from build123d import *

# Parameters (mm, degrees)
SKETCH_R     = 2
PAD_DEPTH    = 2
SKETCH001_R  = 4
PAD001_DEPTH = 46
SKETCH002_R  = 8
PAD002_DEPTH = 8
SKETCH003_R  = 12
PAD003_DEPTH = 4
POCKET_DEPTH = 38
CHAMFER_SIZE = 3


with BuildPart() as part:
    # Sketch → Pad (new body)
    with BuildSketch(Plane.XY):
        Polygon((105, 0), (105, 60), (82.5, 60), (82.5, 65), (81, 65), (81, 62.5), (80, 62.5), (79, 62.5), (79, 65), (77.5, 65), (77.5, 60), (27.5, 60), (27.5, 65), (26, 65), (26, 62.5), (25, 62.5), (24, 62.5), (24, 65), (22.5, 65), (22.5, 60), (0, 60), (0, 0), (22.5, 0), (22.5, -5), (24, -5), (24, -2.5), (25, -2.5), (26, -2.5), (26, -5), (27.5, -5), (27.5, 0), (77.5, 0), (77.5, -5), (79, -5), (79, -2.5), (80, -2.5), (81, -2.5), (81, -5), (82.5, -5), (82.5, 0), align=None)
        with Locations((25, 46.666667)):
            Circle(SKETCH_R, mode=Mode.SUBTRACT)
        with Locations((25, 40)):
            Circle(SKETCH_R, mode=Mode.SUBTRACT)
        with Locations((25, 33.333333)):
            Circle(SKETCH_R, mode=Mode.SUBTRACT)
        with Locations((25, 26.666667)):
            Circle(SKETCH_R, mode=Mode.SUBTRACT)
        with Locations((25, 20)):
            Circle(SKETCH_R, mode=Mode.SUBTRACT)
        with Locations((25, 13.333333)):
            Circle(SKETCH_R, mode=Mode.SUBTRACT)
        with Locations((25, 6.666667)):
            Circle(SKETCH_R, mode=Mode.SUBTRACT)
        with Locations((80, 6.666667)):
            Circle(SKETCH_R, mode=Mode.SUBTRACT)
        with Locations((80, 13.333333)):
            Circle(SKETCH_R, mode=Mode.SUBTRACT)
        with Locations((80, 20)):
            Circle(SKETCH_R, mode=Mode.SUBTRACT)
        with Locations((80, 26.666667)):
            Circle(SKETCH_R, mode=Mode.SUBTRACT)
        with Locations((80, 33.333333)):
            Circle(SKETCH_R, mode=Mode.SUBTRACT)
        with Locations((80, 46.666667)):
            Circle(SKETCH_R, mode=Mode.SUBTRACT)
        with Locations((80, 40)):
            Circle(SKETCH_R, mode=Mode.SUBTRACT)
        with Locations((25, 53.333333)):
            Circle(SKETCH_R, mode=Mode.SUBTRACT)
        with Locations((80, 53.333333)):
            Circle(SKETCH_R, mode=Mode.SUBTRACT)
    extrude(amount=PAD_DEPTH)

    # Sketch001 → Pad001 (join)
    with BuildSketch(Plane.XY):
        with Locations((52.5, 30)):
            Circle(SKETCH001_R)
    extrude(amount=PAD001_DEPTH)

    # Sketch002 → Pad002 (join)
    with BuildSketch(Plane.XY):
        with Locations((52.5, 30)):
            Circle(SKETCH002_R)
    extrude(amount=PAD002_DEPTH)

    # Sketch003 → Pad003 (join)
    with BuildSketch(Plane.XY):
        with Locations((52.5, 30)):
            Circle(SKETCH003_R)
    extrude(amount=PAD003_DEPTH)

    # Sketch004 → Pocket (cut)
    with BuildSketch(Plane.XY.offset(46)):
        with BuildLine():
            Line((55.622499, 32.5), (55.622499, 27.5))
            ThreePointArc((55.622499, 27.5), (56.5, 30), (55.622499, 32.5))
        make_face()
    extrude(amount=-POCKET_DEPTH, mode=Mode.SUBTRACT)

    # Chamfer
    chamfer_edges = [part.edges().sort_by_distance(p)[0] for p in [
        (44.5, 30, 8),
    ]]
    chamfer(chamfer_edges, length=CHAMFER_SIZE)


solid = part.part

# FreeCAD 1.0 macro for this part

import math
import FreeCAD as App
import Part
import Sketcher


def edges_at(feature, points):
    """Names of the edges that pass closest to the given points."""
    edges = feature.Shape.Edges
    near = lambda p: min(range(len(edges)), key=lambda i: edges[i].distToShape(Part.Vertex(*p))[0])
    return sorted({f"Edge{near(p) + 1}" for p in points})


def add_polygon(sketch, points):
    """Adds a closed chain of lines whose ends are joined by coincident constraints."""
    first, n = sketch.GeometryCount, len(points)
    for a, b in zip(points, points[1:] + points[:1]):
        sketch.addGeometry(Part.LineSegment(App.Vector(*a, 0), App.Vector(*b, 0)), False)
    for i in range(n):
        sketch.addConstraint(Sketcher.Constraint("Coincident", first + i, 2, first + (i + 1) % n, 1))

doc = App.newDocument("Part")
params = doc.addObject("Spreadsheet::Sheet", "Params")
for row, (alias, value) in enumerate([
    ("sketch1_diameter", "4 mm"),
    ("sketch1_width", "2 mm"),
    ("sketch1_width2", "50 mm"),
    ("sketch1_height", "60 mm"),
    ("sketch1_height2", "5 mm"),
    ("pad1_length", "2 mm"),
    ("sketch2_diameter", "8 mm"),
    ("pad2_length", "46 mm"),
    ("sketch3_diameter", "16 mm"),
    ("pad3_length", "8 mm"),
    ("sketch4_diameter", "24 mm"),
    ("pad4_length", "4 mm"),
    ("sketch5_radius", "4 mm"),
    ("sketch5_height", "5 mm"),
    ("pocket1_length", "38 mm"),
    ("chamfer_size", "3 mm"),
], start=1):
    params.set(f"A{row}", alias)
    params.set(f"B{row}", "=" + value)
    params.setAlias(f"B{row}", alias)

body = doc.addObject("PartDesign::Body", "Body")

sketch1 = doc.addObject("Sketcher::SketchObject", "Sketch")
body.addObject(sketch1)
sketch1.AttachmentSupport = (doc.XY_Plane, [""])
sketch1.MapMode = "FlatFace"
add_polygon(sketch1, [(105, 0), (105, 60), (82.5, 60), (82.5, 65), (81, 65), (81, 62.5), (79, 62.5), (79, 65), (77.5, 65), (77.5, 60), (27.5, 60), (27.5, 65), (26, 65), (26, 62.5), (24, 62.5), (24, 65), (22.5, 65), (22.5, 60), (0, 60), (0, 0), (22.5, 0), (22.5, -5), (24, -5), (24, -2.5), (26, -2.5), (26, -5), (27.5, -5), (27.5, 0), (77.5, 0), (77.5, -5), (79, -5), (79, -2.5), (81, -2.5), (81, -5), (82.5, -5), (82.5, 0)])
sketch1.addGeometry(Part.Circle(App.Vector(25, 6.666667, 0), App.Vector(0, 0, 1), 2), False)
sketch1.addGeometry(Part.Circle(App.Vector(25, 13.333333, 0), App.Vector(0, 0, 1), 2), False)
sketch1.addGeometry(Part.Circle(App.Vector(25, 20, 0), App.Vector(0, 0, 1), 2), False)
sketch1.addGeometry(Part.Circle(App.Vector(25, 26.666667, 0), App.Vector(0, 0, 1), 2), False)
sketch1.addGeometry(Part.Circle(App.Vector(80, 6.666667, 0), App.Vector(0, 0, 1), 2), False)
sketch1.addGeometry(Part.Circle(App.Vector(80, 13.333333, 0), App.Vector(0, 0, 1), 2), False)
sketch1.addGeometry(Part.Circle(App.Vector(80, 20, 0), App.Vector(0, 0, 1), 2), False)
sketch1.addGeometry(Part.Circle(App.Vector(80, 26.666667, 0), App.Vector(0, 0, 1), 2), False)
sketch1.addGeometry(Part.Circle(App.Vector(25, 33.333333, 0), App.Vector(0, 0, 1), 2), False)
sketch1.addGeometry(Part.Circle(App.Vector(25, 40, 0), App.Vector(0, 0, 1), 2), False)
sketch1.addGeometry(Part.Circle(App.Vector(25, 46.666667, 0), App.Vector(0, 0, 1), 2), False)
sketch1.addGeometry(Part.Circle(App.Vector(25, 53.333333, 0), App.Vector(0, 0, 1), 2), False)
sketch1.addGeometry(Part.Circle(App.Vector(80, 33.333333, 0), App.Vector(0, 0, 1), 2), False)
sketch1.addGeometry(Part.Circle(App.Vector(80, 40, 0), App.Vector(0, 0, 1), 2), False)
sketch1.addGeometry(Part.Circle(App.Vector(80, 46.666667, 0), App.Vector(0, 0, 1), 2), False)
sketch1.addGeometry(Part.Circle(App.Vector(80, 53.333333, 0), App.Vector(0, 0, 1), 2), False)
sketch1.addConstraint(Sketcher.Constraint("Vertical", 0))
sketch1.addConstraint(Sketcher.Constraint("Horizontal", 1))
sketch1.addConstraint(Sketcher.Constraint("Vertical", 2))
sketch1.addConstraint(Sketcher.Constraint("Horizontal", 3))
sketch1.addConstraint(Sketcher.Constraint("Vertical", 4))
sketch1.addConstraint(Sketcher.Constraint("Horizontal", 5))
sketch1.addConstraint(Sketcher.Constraint("Vertical", 6))
sketch1.addConstraint(Sketcher.Constraint("Horizontal", 7))
sketch1.addConstraint(Sketcher.Constraint("Vertical", 8))
sketch1.addConstraint(Sketcher.Constraint("Horizontal", 9))
sketch1.addConstraint(Sketcher.Constraint("Vertical", 10))
sketch1.addConstraint(Sketcher.Constraint("Horizontal", 11))
sketch1.addConstraint(Sketcher.Constraint("Vertical", 12))
sketch1.addConstraint(Sketcher.Constraint("Horizontal", 13))
sketch1.addConstraint(Sketcher.Constraint("Vertical", 14))
sketch1.addConstraint(Sketcher.Constraint("Horizontal", 15))
sketch1.addConstraint(Sketcher.Constraint("Vertical", 16))
sketch1.addConstraint(Sketcher.Constraint("Horizontal", 17))
sketch1.addConstraint(Sketcher.Constraint("Vertical", 18))
sketch1.addConstraint(Sketcher.Constraint("Horizontal", 19))
sketch1.addConstraint(Sketcher.Constraint("Vertical", 20))
sketch1.addConstraint(Sketcher.Constraint("Horizontal", 21))
sketch1.addConstraint(Sketcher.Constraint("Vertical", 22))
sketch1.addConstraint(Sketcher.Constraint("Horizontal", 23))
sketch1.addConstraint(Sketcher.Constraint("Vertical", 24))
sketch1.addConstraint(Sketcher.Constraint("Horizontal", 25))
sketch1.addConstraint(Sketcher.Constraint("Vertical", 26))
sketch1.addConstraint(Sketcher.Constraint("Horizontal", 27))
sketch1.addConstraint(Sketcher.Constraint("Vertical", 28))
sketch1.addConstraint(Sketcher.Constraint("Horizontal", 29))
sketch1.addConstraint(Sketcher.Constraint("Vertical", 30))
sketch1.addConstraint(Sketcher.Constraint("Horizontal", 31))
sketch1.addConstraint(Sketcher.Constraint("Vertical", 32))
sketch1.addConstraint(Sketcher.Constraint("Horizontal", 33))
sketch1.addConstraint(Sketcher.Constraint("Vertical", 34))
sketch1.addConstraint(Sketcher.Constraint("Horizontal", 35))
sketch1.addConstraint(Sketcher.Constraint("Coincident", 18, 2, -1, 1))
sketch1.addConstraint(Sketcher.Constraint("Equal", 36, 37))
sketch1.addConstraint(Sketcher.Constraint("Equal", 37, 38))
sketch1.addConstraint(Sketcher.Constraint("Equal", 38, 39))
sketch1.addConstraint(Sketcher.Constraint("Equal", 39, 40))
sketch1.addConstraint(Sketcher.Constraint("Equal", 40, 41))
sketch1.addConstraint(Sketcher.Constraint("Equal", 41, 42))
sketch1.addConstraint(Sketcher.Constraint("Equal", 42, 43))
sketch1.addConstraint(Sketcher.Constraint("Equal", 43, 44))
sketch1.addConstraint(Sketcher.Constraint("Equal", 44, 45))
sketch1.addConstraint(Sketcher.Constraint("Equal", 45, 46))
sketch1.addConstraint(Sketcher.Constraint("Equal", 46, 47))
sketch1.addConstraint(Sketcher.Constraint("Equal", 47, 48))
sketch1.addConstraint(Sketcher.Constraint("Equal", 48, 49))
sketch1.addConstraint(Sketcher.Constraint("Equal", 49, 50))
sketch1.addConstraint(Sketcher.Constraint("Equal", 50, 51))
sketch1.addConstraint(Sketcher.Constraint("PointOnObject", 26, 2, -1))
sketch1.addConstraint(Sketcher.Constraint("PointOnObject", 34, 2, -1))
sketch1.addConstraint(Sketcher.Constraint("Horizontal", 36, 3, 40, 3))
sketch1.addConstraint(Sketcher.Constraint("Horizontal", 37, 3, 41, 3))
sketch1.addConstraint(Sketcher.Constraint("Horizontal", 38, 3, 42, 3))
sketch1.addConstraint(Sketcher.Constraint("Horizontal", 39, 3, 43, 3))
sketch1.addConstraint(Sketcher.Constraint("Horizontal", 44, 3, 48, 3))
sketch1.addConstraint(Sketcher.Constraint("Horizontal", 45, 3, 49, 3))
sketch1.addConstraint(Sketcher.Constraint("Horizontal", 46, 3, 50, 3))
sketch1.addConstraint(Sketcher.Constraint("Horizontal", 47, 3, 51, 3))
sketch1.addConstraint(Sketcher.Constraint("Horizontal", 3, 2, 6, 2))
sketch1.addConstraint(Sketcher.Constraint("Horizontal", 1, 2, 8, 2))
sketch1.addConstraint(Sketcher.Constraint("Horizontal", 7, 2, 10, 2))
sketch1.addConstraint(Sketcher.Constraint("Horizontal", 5, 2, 12, 2))
sketch1.addConstraint(Sketcher.Constraint("Horizontal", 11, 2, 14, 2))
sketch1.addConstraint(Sketcher.Constraint("Horizontal", 9, 2, 16, 2))
sketch1.addConstraint(Sketcher.Constraint("Horizontal", 21, 2, 24, 2))
sketch1.addConstraint(Sketcher.Constraint("Horizontal", 25, 2, 28, 2))
sketch1.addConstraint(Sketcher.Constraint("Horizontal", 23, 2, 30, 2))
sketch1.addConstraint(Sketcher.Constraint("Horizontal", 29, 2, 32, 2))
sketch1.addConstraint(Sketcher.Constraint("Vertical", 36, 3, 37, 3))
sketch1.addConstraint(Sketcher.Constraint("Vertical", 37, 3, 38, 3))
sketch1.addConstraint(Sketcher.Constraint("Vertical", 38, 3, 39, 3))
sketch1.addConstraint(Sketcher.Constraint("Vertical", 40, 3, 41, 3))
sketch1.addConstraint(Sketcher.Constraint("Vertical", 41, 3, 42, 3))
sketch1.addConstraint(Sketcher.Constraint("Vertical", 42, 3, 43, 3))
sketch1.addConstraint(Sketcher.Constraint("Vertical", 39, 3, 44, 3))
sketch1.addConstraint(Sketcher.Constraint("Vertical", 44, 3, 45, 3))
sketch1.addConstraint(Sketcher.Constraint("Vertical", 45, 3, 46, 3))
sketch1.addConstraint(Sketcher.Constraint("Vertical", 46, 3, 47, 3))
sketch1.addConstraint(Sketcher.Constraint("Vertical", 43, 3, 48, 3))
sketch1.addConstraint(Sketcher.Constraint("Vertical", 48, 3, 49, 3))
sketch1.addConstraint(Sketcher.Constraint("Vertical", 49, 3, 50, 3))
sketch1.addConstraint(Sketcher.Constraint("Vertical", 50, 3, 51, 3))
sketch1.addConstraint(Sketcher.Constraint("Vertical", 16, 2, 19, 2))
sketch1.addConstraint(Sketcher.Constraint("Vertical", 14, 2, 21, 2))
sketch1.addConstraint(Sketcher.Constraint("Vertical", 12, 2, 23, 2))
sketch1.addConstraint(Sketcher.Constraint("Vertical", 10, 2, 25, 2))
sketch1.addConstraint(Sketcher.Constraint("Vertical", 8, 2, 27, 2))
sketch1.addConstraint(Sketcher.Constraint("Vertical", 6, 2, 29, 2))
sketch1.addConstraint(Sketcher.Constraint("Vertical", 4, 2, 31, 2))
sketch1.addConstraint(Sketcher.Constraint("Vertical", 2, 2, 33, 2))
sketch1.addConstraint(Sketcher.Constraint("Equal", 3, 7))
sketch1.addConstraint(Sketcher.Constraint("Equal", 7, 11))
sketch1.addConstraint(Sketcher.Constraint("Equal", 5, 13))
sketch1.addConstraint(Sketcher.Constraint("Equal", 11, 15))
sketch1.addConstraint(Sketcher.Constraint("Equal", 1, 17))
sketch1.addConstraint(Sketcher.Constraint("Equal", 16, 20))
sketch1.addConstraint(Sketcher.Constraint("Equal", 14, 22))
sketch1.addConstraint(Sketcher.Constraint("Diameter", 36, 4.0))
sketch1.addConstraint(Sketcher.Constraint("DistanceX", 5, 2, 5, 1, 2.0))
sketch1.addConstraint(Sketcher.Constraint("DistanceX", 9, 2, 9, 1, 50.0))
sketch1.addConstraint(Sketcher.Constraint("DistanceY", 0, 1, 0, 2, 60.0))
sketch1.addConstraint(Sketcher.Constraint("DistanceY", 2, 1, 2, 2, 5.0))
sketch1.addConstraint(Sketcher.Constraint("DistanceX", 1, 2, 1, 1, 22.5))
sketch1.addConstraint(Sketcher.Constraint("DistanceX", 3, 2, 3, 1, 1.5))
sketch1.addConstraint(Sketcher.Constraint("DistanceY", 4, 2, 4, 1, 2.5))
sketch1.addConstraint(Sketcher.Constraint("DistanceX", -1, 1, 36, 3, 25.0))
sketch1.addConstraint(Sketcher.Constraint("DistanceY", -1, 1, 38, 3, 20.0))
sketch1.addConstraint(Sketcher.Constraint("DistanceX", -1, 1, 40, 3, 80.0))
sketch1.addConstraint(Sketcher.Constraint("DistanceY", -1, 1, 45, 3, 40.0))
sketch1.addConstraint(Sketcher.Constraint("DistanceY", 36, 3, 39, 3, 20.0))
sketch1.addConstraint(Sketcher.Constraint("DistanceY", 37, 3, 44, 3, 20.0))
sketch1.addConstraint(Sketcher.Constraint("DistanceY", 39, 3, 46, 3, 20.0))
sketch1.addConstraint(Sketcher.Constraint("DistanceY", 44, 3, 47, 3, 20.0))
sketch1.addConstraint(Sketcher.Constraint("DistanceY", -1, 1, 36, 3, 6.666667))
sketch1.addConstraint(Sketcher.Constraint("DistanceY", -1, 1, 37, 3, 13.333333))
sketch1.setExpression("Constraints[137]", "Params.sketch1_diameter")
sketch1.setExpression("Constraints[138]", "Params.sketch1_width")
sketch1.setExpression("Constraints[139]", "Params.sketch1_width2")
sketch1.setExpression("Constraints[140]", "Params.sketch1_height")
sketch1.setExpression("Constraints[141]", "Params.sketch1_height2")
pad1 = doc.addObject("PartDesign::Pad", "Pad")
body.addObject(pad1)
pad1.Profile = sketch1
pad1.setExpression("Length", "Params.pad1_length")

sketch2 = doc.addObject("Sketcher::SketchObject", "Sketch001")
body.addObject(sketch2)
sketch2.AttachmentSupport = (doc.XY_Plane, [""])
sketch2.MapMode = "FlatFace"
sketch2.addGeometry(Part.Circle(App.Vector(52.5, 30, 0), App.Vector(0, 0, 1), 4), False)
sketch2.addConstraint(Sketcher.Constraint("Diameter", 0, 8.0))
sketch2.addConstraint(Sketcher.Constraint("DistanceY", -1, 1, 0, 3, 30.0))
sketch2.addConstraint(Sketcher.Constraint("DistanceX", -1, 1, 0, 3, 52.5))
sketch2.setExpression("Constraints[0]", "Params.sketch2_diameter")
pad2 = doc.addObject("PartDesign::Pad", "Pad001")
body.addObject(pad2)
pad2.Profile = sketch2
pad2.setExpression("Length", "Params.pad2_length")

sketch3 = doc.addObject("Sketcher::SketchObject", "Sketch002")
body.addObject(sketch3)
sketch3.AttachmentSupport = (doc.XY_Plane, [""])
sketch3.MapMode = "FlatFace"
sketch3.addGeometry(Part.Circle(App.Vector(52.5, 30, 0), App.Vector(0, 0, 1), 8), False)
sketch3.addConstraint(Sketcher.Constraint("Diameter", 0, 16.0))
sketch3.addConstraint(Sketcher.Constraint("DistanceY", -1, 1, 0, 3, 30.0))
sketch3.addConstraint(Sketcher.Constraint("DistanceX", -1, 1, 0, 3, 52.5))
sketch3.setExpression("Constraints[0]", "Params.sketch3_diameter")
pad3 = doc.addObject("PartDesign::Pad", "Pad002")
body.addObject(pad3)
pad3.Profile = sketch3
pad3.setExpression("Length", "Params.pad3_length")

sketch4 = doc.addObject("Sketcher::SketchObject", "Sketch003")
body.addObject(sketch4)
sketch4.AttachmentSupport = (doc.XY_Plane, [""])
sketch4.MapMode = "FlatFace"
sketch4.addGeometry(Part.Circle(App.Vector(52.5, 30, 0), App.Vector(0, 0, 1), 12), False)
sketch4.addConstraint(Sketcher.Constraint("Diameter", 0, 24.0))
sketch4.addConstraint(Sketcher.Constraint("DistanceY", -1, 1, 0, 3, 30.0))
sketch4.addConstraint(Sketcher.Constraint("DistanceX", -1, 1, 0, 3, 52.5))
sketch4.setExpression("Constraints[0]", "Params.sketch4_diameter")
pad4 = doc.addObject("PartDesign::Pad", "Pad003")
body.addObject(pad4)
pad4.Profile = sketch4
pad4.setExpression("Length", "Params.pad4_length")

sketch5 = doc.addObject("Sketcher::SketchObject", "Sketch004")
body.addObject(sketch5)
sketch5.AttachmentSupport = (doc.XY_Plane, [""])
sketch5.MapMode = "FlatFace"
sketch5.AttachmentOffset = App.Placement(App.Vector(0, 0, 46), App.Rotation())
sketch5.addGeometry(Part.LineSegment(App.Vector(55.622499, 32.5, 0), App.Vector(55.622499, 27.5, 0)), False)
sketch5.addGeometry(Part.ArcOfCircle(Part.Circle(App.Vector(52.5, 30, 0), App.Vector(0, 0, 1), 4), math.radians(-38.682187), math.radians(38.682187)), False)
sketch5.addConstraint(Sketcher.Constraint("Coincident", 0, 1, 1, 2))
sketch5.addConstraint(Sketcher.Constraint("Coincident", 1, 1, 0, 2))
sketch5.addConstraint(Sketcher.Constraint("Vertical", 0))
sketch5.addConstraint(Sketcher.Constraint("Radius", 1, 4.0))
sketch5.addConstraint(Sketcher.Constraint("DistanceY", 0, 2, 0, 1, 5.0))
sketch5.addConstraint(Sketcher.Constraint("DistanceY", -1, 1, 1, 3, 30.0))
sketch5.addConstraint(Sketcher.Constraint("DistanceX", -1, 1, 1, 3, 52.5))
sketch5.setExpression("Constraints[3]", "Params.sketch5_radius")
sketch5.setExpression("Constraints[4]", "Params.sketch5_height")
pocket1 = doc.addObject("PartDesign::Pocket", "Pocket")
body.addObject(pocket1)
pocket1.Profile = sketch5
pocket1.setExpression("Length", "Params.pocket1_length")
doc.recompute()

chamfer = doc.addObject("PartDesign::Chamfer", "Chamfer")
body.addObject(chamfer)
chamfer.Base = (pocket1, edges_at(pocket1, [(44.5, 30, 8)]))
chamfer.setExpression("Size", "Params.chamfer_size")

doc.recompute()
